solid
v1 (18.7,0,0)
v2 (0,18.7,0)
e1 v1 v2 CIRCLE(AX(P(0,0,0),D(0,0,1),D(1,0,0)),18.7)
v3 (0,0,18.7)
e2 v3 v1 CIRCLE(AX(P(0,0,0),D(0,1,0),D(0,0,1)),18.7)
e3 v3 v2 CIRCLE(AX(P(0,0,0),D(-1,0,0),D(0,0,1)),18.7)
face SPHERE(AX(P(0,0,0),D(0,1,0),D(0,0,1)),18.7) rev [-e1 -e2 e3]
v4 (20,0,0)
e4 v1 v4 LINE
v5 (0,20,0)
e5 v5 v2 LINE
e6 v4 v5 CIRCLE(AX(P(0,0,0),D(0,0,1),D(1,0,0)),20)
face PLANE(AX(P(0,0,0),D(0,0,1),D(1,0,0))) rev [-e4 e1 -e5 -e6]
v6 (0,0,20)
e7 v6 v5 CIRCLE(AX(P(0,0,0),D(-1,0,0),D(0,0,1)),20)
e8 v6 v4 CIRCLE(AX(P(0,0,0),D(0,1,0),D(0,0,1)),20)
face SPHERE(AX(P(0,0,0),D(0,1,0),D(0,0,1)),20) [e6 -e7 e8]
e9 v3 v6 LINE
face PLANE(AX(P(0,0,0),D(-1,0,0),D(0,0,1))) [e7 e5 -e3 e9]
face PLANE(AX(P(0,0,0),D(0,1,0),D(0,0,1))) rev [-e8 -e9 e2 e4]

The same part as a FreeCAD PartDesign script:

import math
import FreeCAD as App
import Part
import Sketcher
from FreeCAD import Vector


def faces_at(feature, points):
    """Names of the faces that lie closest to the given points."""
    faces = feature.Shape.Faces
    near = lambda p: min(range(len(faces)), key=lambda i: faces[i].distToShape(Part.Vertex(*p))[0])
    return sorted({f"Face{near(p) + 1}" for p in points})

doc = App.newDocument("Part")
body = doc.addObject("PartDesign::Body", "Body")

sketch1 = doc.addObject("Sketcher::SketchObject", "Sketch")
body.addObject(sketch1)
sketch1.AttachmentSupport = (doc.XY_Plane, [""])
sketch1.MapMode = "FlatFace"
sketch1.addGeometry(Part.LineSegment(Vector(0, 20, 0), Vector(0, 0, 0)), False)
sketch1.addGeometry(Part.LineSegment(Vector(0, 0, 0), Vector(20, 0, 0)), False)
sketch1.addGeometry(Part.ArcOfCircle(Part.Circle(Vector(0, 0, 0), Vector(0, 0, 1), 20), math.radians(0), math.radians(90)), False)
sketch1.addConstraint(Sketcher.Constraint("Coincident", 0, 2, 1, 1))
sketch1.addConstraint(Sketcher.Constraint("Coincident", 1, 2, 2, 1))
sketch1.addConstraint(Sketcher.Constraint("Coincident", 2, 2, 0, 1))
sketch1.addConstraint(Sketcher.Constraint("Vertical", 0))
sketch1.addConstraint(Sketcher.Constraint("Horizontal", 1))
sketch1.addConstraint(Sketcher.Constraint("Coincident", 2, 3, -1, 1))
sketch1.addConstraint(Sketcher.Constraint("Coincident", 0, 2, -1, 1))
sketch1.addConstraint(Sketcher.Constraint("Radius", 2, 20.0))
revolution = doc.addObject("PartDesign::Revolution", "Revolution")
body.addObject(revolution)
revolution.Profile = sketch1
revolution.ReferenceAxis = (sketch1, ["V_Axis"])
revolution.Angle = 90
revolution.Reversed = True
doc.recompute()

thickness = doc.addObject("PartDesign::Thickness", "Thickness")
body.addObject(thickness)
thickness.Base = (revolution, faces_at(revolution, [(0, 10, 10), (10, 10, 0), (10, 0, 10)]))
thickness.Value = 1.3
thickness.Reversed = True
thickness.Join = "Arc"

doc.recompute()
